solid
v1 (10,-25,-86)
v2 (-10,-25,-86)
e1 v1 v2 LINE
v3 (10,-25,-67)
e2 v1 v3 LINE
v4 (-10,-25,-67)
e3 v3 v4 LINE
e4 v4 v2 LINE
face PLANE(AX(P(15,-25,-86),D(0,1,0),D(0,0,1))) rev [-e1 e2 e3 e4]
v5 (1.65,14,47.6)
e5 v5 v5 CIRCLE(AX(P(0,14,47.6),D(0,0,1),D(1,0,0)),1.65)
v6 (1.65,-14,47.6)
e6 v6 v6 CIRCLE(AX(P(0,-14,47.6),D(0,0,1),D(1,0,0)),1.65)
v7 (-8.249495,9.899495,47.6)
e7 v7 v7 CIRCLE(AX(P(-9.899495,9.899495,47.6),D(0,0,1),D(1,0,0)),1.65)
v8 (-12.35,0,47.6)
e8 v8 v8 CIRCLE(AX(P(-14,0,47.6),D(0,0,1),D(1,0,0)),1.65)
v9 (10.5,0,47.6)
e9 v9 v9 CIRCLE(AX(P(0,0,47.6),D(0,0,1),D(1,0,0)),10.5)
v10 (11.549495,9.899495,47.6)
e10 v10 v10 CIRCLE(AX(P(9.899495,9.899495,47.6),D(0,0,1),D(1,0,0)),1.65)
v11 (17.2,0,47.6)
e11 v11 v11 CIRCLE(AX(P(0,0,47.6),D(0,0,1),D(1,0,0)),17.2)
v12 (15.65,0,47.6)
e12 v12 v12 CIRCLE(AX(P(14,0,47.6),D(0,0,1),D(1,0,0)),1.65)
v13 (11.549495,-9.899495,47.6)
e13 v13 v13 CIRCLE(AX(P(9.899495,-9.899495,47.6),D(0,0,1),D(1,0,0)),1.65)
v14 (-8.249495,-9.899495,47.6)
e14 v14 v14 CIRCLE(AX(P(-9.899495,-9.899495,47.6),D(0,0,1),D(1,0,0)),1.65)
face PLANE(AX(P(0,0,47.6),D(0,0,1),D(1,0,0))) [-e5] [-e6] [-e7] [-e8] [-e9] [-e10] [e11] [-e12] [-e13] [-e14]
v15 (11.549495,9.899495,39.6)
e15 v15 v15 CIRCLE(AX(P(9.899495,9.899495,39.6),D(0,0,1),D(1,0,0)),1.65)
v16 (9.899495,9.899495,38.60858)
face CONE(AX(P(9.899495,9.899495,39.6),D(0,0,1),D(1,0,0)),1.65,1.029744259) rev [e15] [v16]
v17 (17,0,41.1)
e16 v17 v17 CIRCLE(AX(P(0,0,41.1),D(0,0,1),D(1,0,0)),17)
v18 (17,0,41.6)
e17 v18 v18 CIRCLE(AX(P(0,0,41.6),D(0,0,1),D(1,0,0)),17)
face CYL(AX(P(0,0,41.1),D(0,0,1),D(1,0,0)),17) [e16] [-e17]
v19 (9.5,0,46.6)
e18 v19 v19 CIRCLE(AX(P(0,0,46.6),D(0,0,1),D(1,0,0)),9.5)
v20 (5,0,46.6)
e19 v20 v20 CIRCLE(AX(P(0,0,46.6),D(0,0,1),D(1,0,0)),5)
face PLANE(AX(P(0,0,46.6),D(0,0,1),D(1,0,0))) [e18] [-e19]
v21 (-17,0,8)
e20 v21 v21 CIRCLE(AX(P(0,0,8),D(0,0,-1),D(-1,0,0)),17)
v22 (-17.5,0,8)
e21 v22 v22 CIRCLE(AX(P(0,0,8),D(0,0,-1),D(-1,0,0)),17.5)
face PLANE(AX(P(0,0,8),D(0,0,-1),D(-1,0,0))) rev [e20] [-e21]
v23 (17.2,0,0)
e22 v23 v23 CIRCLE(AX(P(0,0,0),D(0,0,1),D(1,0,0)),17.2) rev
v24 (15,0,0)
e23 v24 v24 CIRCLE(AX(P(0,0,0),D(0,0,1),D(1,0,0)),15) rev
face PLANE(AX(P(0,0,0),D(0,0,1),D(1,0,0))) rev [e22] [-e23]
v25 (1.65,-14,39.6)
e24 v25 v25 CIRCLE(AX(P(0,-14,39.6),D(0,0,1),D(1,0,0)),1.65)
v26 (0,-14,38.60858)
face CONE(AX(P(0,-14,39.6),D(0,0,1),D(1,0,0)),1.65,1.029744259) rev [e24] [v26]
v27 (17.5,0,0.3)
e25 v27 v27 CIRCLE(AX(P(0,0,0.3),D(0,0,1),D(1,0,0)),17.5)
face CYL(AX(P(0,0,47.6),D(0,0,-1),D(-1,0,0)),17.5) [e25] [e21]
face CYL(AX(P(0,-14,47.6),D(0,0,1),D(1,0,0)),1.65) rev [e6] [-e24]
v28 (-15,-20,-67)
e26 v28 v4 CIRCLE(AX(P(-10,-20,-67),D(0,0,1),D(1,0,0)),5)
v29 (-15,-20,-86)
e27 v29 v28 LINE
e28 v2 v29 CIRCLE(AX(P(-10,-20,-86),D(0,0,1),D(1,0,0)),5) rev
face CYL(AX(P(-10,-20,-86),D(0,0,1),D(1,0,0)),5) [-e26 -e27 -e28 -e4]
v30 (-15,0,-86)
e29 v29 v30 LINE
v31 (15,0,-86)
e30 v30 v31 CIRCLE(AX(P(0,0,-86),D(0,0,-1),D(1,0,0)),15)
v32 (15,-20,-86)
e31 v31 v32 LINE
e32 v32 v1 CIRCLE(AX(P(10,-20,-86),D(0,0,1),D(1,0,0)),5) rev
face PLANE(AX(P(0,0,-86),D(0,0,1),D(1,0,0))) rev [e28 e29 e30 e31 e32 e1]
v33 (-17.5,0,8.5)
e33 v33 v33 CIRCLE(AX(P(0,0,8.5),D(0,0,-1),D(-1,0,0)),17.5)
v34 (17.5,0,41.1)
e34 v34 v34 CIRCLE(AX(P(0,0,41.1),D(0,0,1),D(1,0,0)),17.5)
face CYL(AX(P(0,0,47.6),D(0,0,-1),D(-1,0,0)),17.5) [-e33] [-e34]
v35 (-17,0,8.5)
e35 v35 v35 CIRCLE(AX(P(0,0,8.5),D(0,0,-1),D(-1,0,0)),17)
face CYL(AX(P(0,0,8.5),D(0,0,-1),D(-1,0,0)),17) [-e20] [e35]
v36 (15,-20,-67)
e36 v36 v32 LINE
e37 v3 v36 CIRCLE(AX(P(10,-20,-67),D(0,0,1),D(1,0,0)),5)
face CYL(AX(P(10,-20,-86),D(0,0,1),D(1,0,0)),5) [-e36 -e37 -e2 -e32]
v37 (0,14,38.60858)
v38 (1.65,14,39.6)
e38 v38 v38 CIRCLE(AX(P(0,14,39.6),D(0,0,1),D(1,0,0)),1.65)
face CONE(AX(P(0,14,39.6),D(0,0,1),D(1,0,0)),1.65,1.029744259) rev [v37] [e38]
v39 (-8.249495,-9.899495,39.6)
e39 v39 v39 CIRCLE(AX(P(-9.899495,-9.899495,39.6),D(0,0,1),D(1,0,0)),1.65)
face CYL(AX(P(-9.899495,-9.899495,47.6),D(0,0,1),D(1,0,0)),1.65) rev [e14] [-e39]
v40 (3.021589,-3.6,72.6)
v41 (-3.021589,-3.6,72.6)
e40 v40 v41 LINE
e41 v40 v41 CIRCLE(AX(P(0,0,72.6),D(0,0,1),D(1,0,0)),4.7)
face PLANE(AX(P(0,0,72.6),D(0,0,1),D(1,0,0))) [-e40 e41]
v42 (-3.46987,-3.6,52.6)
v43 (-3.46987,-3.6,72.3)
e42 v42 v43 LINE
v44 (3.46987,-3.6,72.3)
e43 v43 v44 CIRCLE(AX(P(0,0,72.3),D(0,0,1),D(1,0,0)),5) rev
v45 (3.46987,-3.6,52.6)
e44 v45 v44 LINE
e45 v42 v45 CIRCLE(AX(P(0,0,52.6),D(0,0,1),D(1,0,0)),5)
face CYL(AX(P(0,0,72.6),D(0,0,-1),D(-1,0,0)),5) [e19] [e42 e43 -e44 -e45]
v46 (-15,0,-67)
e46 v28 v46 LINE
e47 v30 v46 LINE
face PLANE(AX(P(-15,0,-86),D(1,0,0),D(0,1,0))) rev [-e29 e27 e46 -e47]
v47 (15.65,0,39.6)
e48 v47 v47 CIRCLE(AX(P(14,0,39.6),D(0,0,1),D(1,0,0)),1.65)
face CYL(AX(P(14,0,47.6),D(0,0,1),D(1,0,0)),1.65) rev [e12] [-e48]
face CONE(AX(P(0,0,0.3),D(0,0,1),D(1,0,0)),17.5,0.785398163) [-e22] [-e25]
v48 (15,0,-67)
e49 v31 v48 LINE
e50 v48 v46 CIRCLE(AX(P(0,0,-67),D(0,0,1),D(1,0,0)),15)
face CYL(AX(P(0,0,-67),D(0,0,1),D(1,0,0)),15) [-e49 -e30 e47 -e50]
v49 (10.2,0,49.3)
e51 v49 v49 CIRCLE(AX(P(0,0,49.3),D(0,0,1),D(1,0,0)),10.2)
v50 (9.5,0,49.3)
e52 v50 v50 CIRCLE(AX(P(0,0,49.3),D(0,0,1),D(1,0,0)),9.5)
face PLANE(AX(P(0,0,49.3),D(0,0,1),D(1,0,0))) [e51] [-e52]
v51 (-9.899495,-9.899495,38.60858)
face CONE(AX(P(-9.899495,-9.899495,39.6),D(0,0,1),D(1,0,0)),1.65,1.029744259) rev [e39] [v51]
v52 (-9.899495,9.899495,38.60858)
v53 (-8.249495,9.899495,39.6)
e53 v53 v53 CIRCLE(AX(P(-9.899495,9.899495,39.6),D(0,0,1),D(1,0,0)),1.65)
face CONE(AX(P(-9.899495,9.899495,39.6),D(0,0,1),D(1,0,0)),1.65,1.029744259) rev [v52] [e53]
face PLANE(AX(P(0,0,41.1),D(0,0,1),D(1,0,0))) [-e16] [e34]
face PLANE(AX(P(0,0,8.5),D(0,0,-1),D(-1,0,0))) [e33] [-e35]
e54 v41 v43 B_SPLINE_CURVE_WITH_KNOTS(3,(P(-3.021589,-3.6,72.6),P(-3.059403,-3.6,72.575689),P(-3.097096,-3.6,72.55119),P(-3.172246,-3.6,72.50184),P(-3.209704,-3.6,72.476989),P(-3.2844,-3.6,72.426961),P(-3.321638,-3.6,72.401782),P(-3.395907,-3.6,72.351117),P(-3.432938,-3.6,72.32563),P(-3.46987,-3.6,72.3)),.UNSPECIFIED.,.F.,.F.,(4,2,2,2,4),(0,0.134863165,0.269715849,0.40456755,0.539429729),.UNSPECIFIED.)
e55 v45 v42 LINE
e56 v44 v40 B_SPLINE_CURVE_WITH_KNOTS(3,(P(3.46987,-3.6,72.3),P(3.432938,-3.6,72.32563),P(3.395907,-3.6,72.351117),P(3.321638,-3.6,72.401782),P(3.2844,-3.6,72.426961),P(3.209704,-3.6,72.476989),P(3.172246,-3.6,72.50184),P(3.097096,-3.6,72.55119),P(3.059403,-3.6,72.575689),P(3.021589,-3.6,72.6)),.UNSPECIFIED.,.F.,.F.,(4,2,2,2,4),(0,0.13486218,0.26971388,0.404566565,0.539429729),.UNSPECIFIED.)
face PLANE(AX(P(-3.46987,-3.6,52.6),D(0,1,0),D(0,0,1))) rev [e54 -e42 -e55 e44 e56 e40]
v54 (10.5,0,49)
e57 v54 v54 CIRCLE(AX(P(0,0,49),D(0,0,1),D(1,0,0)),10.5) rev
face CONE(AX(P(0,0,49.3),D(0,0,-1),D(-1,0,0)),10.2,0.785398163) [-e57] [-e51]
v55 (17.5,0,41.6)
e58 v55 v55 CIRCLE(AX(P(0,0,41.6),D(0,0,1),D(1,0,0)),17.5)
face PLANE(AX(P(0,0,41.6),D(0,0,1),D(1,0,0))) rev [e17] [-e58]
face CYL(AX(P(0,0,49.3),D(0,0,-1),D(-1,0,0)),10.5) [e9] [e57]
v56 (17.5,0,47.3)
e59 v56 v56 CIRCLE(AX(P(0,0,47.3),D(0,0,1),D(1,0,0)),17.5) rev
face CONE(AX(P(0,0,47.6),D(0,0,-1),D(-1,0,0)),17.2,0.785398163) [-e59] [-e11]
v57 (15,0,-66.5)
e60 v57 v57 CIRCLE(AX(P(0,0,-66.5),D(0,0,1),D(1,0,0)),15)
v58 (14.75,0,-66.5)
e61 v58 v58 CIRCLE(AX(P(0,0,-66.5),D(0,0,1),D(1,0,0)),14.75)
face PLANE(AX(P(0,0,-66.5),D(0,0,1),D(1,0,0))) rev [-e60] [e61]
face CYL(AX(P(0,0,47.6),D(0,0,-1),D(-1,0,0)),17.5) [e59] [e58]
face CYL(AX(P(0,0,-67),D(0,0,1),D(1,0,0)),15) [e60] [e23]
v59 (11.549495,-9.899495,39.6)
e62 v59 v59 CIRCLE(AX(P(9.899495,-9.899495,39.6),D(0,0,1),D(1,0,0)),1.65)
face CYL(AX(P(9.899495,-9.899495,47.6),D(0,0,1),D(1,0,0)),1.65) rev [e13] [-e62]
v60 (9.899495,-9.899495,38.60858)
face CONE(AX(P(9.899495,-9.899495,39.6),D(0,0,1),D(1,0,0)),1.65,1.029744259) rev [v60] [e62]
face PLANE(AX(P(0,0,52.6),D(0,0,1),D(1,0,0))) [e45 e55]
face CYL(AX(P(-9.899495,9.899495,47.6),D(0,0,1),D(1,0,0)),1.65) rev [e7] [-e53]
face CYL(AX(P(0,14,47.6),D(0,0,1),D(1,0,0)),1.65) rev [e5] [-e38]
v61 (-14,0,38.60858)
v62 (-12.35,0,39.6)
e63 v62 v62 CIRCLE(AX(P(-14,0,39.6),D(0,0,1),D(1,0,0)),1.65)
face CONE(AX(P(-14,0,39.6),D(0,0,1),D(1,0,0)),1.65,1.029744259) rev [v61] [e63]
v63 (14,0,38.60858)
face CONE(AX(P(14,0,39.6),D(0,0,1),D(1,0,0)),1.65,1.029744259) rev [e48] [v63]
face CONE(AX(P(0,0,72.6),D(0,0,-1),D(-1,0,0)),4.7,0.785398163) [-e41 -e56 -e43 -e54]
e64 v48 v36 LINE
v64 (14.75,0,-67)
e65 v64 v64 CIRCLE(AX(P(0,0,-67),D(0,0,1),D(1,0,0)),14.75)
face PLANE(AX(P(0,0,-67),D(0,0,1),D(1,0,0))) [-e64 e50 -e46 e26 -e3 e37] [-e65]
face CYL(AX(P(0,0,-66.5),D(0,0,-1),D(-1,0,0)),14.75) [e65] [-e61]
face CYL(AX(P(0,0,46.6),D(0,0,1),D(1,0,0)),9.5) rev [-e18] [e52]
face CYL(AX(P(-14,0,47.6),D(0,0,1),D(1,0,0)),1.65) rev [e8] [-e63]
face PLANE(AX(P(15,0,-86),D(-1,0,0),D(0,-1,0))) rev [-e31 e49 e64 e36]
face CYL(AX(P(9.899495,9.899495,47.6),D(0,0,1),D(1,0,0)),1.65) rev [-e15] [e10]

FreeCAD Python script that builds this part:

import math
import FreeCAD as App
import Part
import Sketcher
from FreeCAD import Vector


def edges_at(feature, points):
    """Names of the edges that pass closest to the given points."""
    edges = feature.Shape.Edges
    near = lambda p: min(range(len(edges)), key=lambda i: edges[i].distToShape(Part.Vertex(*p))[0])
    return sorted({f"Edge{near(p) + 1}" for p in points})

doc = App.newDocument("Part")
body = doc.addObject("PartDesign::Body", "Body")

# Sketch on XY plane
sketch1 = body.newObject("Sketcher::SketchObject", "Sketch")
sketch1.AttachmentSupport = (doc.getObject("XY_Plane"), [""])
sketch1.MapMode = "FlatFace"
sketch1.addGeometry(Part.Circle(Vector(0, 0, 0), Vector(0, 0, 1), 17.5), False)
sketch1.addConstraint(Sketcher.Constraint("Coincident", 0, 3, -1, 1))
sketch1.addConstraint(Sketcher.Constraint("Diameter", 0, 35.0))
pad1 = body.newObject("PartDesign::Pad", "Pad")
pad1.Profile = sketch1
pad1.Length = 47.6

# Sketch on XY plane
sketch2 = body.newObject("Sketcher::SketchObject", "Sketch001")
sketch2.AttachmentSupport = (doc.getObject("XY_Plane"), [""])
sketch2.MapMode = "FlatFace"
sketch2.AttachmentOffset = App.Placement(Vector(0, 0, 47.6), App.Rotation())
sketch2.addGeometry(Part.Circle(Vector(0, 0, 0), Vector(0, 0, 1), 9.5), False)
sketch2.addConstraint(Sketcher.Constraint("Coincident", 0, 3, -1, 1))
sketch2.addConstraint(Sketcher.Constraint("Diameter", 0, 19.0))
pocket1 = body.newObject("PartDesign::Pocket", "Pocket")
pocket1.Profile = sketch2
pocket1.Length = 1

# Sketch on XY plane
sketch3 = body.newObject("Sketcher::SketchObject", "Sketch002")
sketch3.AttachmentSupport = (doc.getObject("XY_Plane"), [""])
sketch3.MapMode = "FlatFace"
sketch3.AttachmentOffset = App.Placement(Vector(0, 0, 47.6), App.Rotation())
sketch3.addGeometry(Part.Circle(Vector(0, 0, 0), Vector(0, 0, 1), 10.5), False)
sketch3.addGeometry(Part.Circle(Vector(0, 0, 0), Vector(0, 0, 1), 9.5), False)
sketch3.addConstraint(Sketcher.Constraint("Coincident", 0, 3, -1, 1))
sketch3.addConstraint(Sketcher.Constraint("Coincident", 1, 3, -1, 1))
sketch3.addConstraint(Sketcher.Constraint("Diameter", 0, 21.0))
sketch3.addConstraint(Sketcher.Constraint("Diameter", 1, 19.0))
pad2 = body.newObject("PartDesign::Pad", "Pad001")
pad2.Profile = sketch3
pad2.Length = 1.7

# Sketch on XY plane
sketch4 = body.newObject("Sketcher::SketchObject", "Sketch003")
sketch4.AttachmentSupport = (doc.getObject("XY_Plane"), [""])
sketch4.MapMode = "FlatFace"
sketch4.AttachmentOffset = App.Placement(Vector(0, 0, 46.6), App.Rotation())
sketch4.addGeometry(Part.Circle(Vector(0, 0, 0), Vector(0, 0, 1), 5), False)
sketch4.addConstraint(Sketcher.Constraint("Coincident", 0, 3, -1, 1))
sketch4.addConstraint(Sketcher.Constraint("Diameter", 0, 10.0))
pad3 = body.newObject("PartDesign::Pad", "Pad002")
pad3.Profile = sketch4
pad3.Length = 26

# Sketch on XY plane
sketch5 = body.newObject("Sketcher::SketchObject", "Sketch004")
sketch5.AttachmentSupport = (doc.getObject("XY_Plane"), [""])
sketch5.MapMode = "FlatFace"
sketch5.AttachmentOffset = App.Placement(Vector(0, 0, 72.6), App.Rotation())
sketch5.addGeometry(Part.LineSegment(Vector(3.46987, -3.6, 0), Vector(-3.46987, -3.6, 0)), False)
sketch5.addGeometry(Part.ArcOfCircle(Part.Circle(Vector(0, 0, 0), Vector(0, 0, 1), 5), math.radians(-133.94552), math.radians(-46.05448)), False)
sketch5.addConstraint(Sketcher.Constraint("Coincident", 0, 1, 1, 2))
sketch5.addConstraint(Sketcher.Constraint("Coincident", 1, 1, 0, 2))
sketch5.addConstraint(Sketcher.Constraint("Horizontal", 0))
sketch5.addConstraint(Sketcher.Constraint("Coincident", 1, 3, -1, 1))
sketch5.addConstraint(Sketcher.Constraint("Radius", 1, 5.0))
sketch5.addConstraint(Sketcher.Constraint("DistanceY", 0, 1, -1, 1, 3.6))
pocket2 = body.newObject("PartDesign::Pocket", "Pocket001")
pocket2.Profile = sketch5
pocket2.Length = 20

# Sketch on XY plane
sketch6 = body.newObject("Sketcher::SketchObject", "Sketch005")
sketch6.AttachmentSupport = (doc.getObject("XY_Plane"), [""])
sketch6.MapMode = "FlatFace"
sketch6.addGeometry(Part.Circle(Vector(0, 0, 0), Vector(0, 0, 1), 15), False)
sketch6.addConstraint(Sketcher.Constraint("Coincident", 0, 3, -1, 1))
sketch6.addConstraint(Sketcher.Constraint("Diameter", 0, 30.0))
pad4 = body.newObject("PartDesign::Pad", "Pad003")
pad4.Profile = sketch6
pad4.Length = 67
pad4.Reversed = True

# Sketch on XY plane
sketch7 = body.newObject("Sketcher::SketchObject", "Sketch006")
sketch7.AttachmentSupport = (doc.getObject("XY_Plane"), [""])
sketch7.MapMode = "FlatFace"
sketch7.AttachmentOffset = App.Placement(Vector(0, 0, -67), App.Rotation())
sketch7.addGeometry(Part.LineSegment(Vector(15, 0, 0), Vector(15, -25, 0)), False)
sketch7.addGeometry(Part.LineSegment(Vector(15, -25, 0), Vector(-15, -25, 0)), False)
sketch7.addGeometry(Part.LineSegment(Vector(-15, -25, 0), Vector(-15, 0, 0)), False)
sketch7.addGeometry(Part.ArcOfCircle(Part.Circle(Vector(0, 0, 0), Vector(0, 0, 1), 15), math.radians(0), math.radians(180)), False)
sketch7.addConstraint(Sketcher.Constraint("Coincident", 0, 2, 1, 1))
sketch7.addConstraint(Sketcher.Constraint("Coincident", 1, 2, 2, 1))
sketch7.addConstraint(Sketcher.Constraint("Tangent", 2, 2, 3, 2))
sketch7.addConstraint(Sketcher.Constraint("Tangent", 3, 1, 0, 1))
sketch7.addConstraint(Sketcher.Constraint("Vertical", 0))
sketch7.addConstraint(Sketcher.Constraint("Horizontal", 1))
sketch7.addConstraint(Sketcher.Constraint("Vertical", 2))
sketch7.addConstraint(Sketcher.Constraint("Coincident", 3, 3, -1, 1))
sketch7.addConstraint(Sketcher.Constraint("Radius", 3, 15.0))
sketch7.addConstraint(Sketcher.Constraint("DistanceY", 0, 2, 0, 1, 25.0))
pad5 = body.newObject("PartDesign::Pad", "Pad004")
pad5.Profile = sketch7
pad5.Length = 19
pad5.Reversed = True

# Sketch on XY plane
sketch8 = body.newObject("Sketcher::SketchObject", "Sketch007")
sketch8.AttachmentSupport = (doc.getObject("XY_Plane"), [""])
sketch8.MapMode = "FlatFace"
sketch8.AttachmentOffset = App.Placement(Vector(0, 0, 47.6), App.Rotation())
sketch8.addGeometry(Part.Circle(Vector(0, 14, 0), Vector(0, 0, 1), 1.65), False)
sketch8.addGeometry(Part.Circle(Vector(-9.899495, 9.899495, 0), Vector(0, 0, 1), 1.65), False)
sketch8.addGeometry(Part.Circle(Vector(-14, 0, 0), Vector(0, 0, 1), 1.65), False)
sketch8.addGeometry(Part.Circle(Vector(-9.899495, -9.899495, 0), Vector(0, 0, 1), 1.65), False)
sketch8.addGeometry(Part.Circle(Vector(0, -14, 0), Vector(0, 0, 1), 1.65), False)
sketch8.addGeometry(Part.Circle(Vector(9.899495, -9.899495, 0), Vector(0, 0, 1), 1.65), False)
sketch8.addGeometry(Part.Circle(Vector(14, 0, 0), Vector(0, 0, 1), 1.65), False)
sketch8.addGeometry(Part.Circle(Vector(9.899495, 9.899495, 0), Vector(0, 0, 1), 1.65), False)
sketch8.addConstraint(Sketcher.Constraint("Equal", 0, 1))
sketch8.addConstraint(Sketcher.Constraint("Equal", 1, 2))
sketch8.addConstraint(Sketcher.Constraint("Equal", 2, 3))
sketch8.addConstraint(Sketcher.Constraint("Equal", 3, 4))
sketch8.addConstraint(Sketcher.Constraint("Equal", 4, 5))
sketch8.addConstraint(Sketcher.Constraint("Equal", 5, 6))
sketch8.addConstraint(Sketcher.Constraint("Equal", 6, 7))
sketch8.addConstraint(Sketcher.Constraint("Symmetric", 0, 3, 4, 3, -1, 1))
sketch8.addConstraint(Sketcher.Constraint("Symmetric", 1, 3, 5, 3, -1, 1))
sketch8.addConstraint(Sketcher.Constraint("Symmetric", 2, 3, 6, 3, -1, 1))
sketch8.addConstraint(Sketcher.Constraint("Symmetric", 3, 3, 7, 3, -1, 1))
sketch8.addConstraint(Sketcher.Constraint("Symmetric", 3, 3, 5, 3, -2))
sketch8.addConstraint(Sketcher.Constraint("PointOnObject", 0, 3, -2))
sketch8.addConstraint(Sketcher.Constraint("PointOnObject", 2, 3, -1))
sketch8.addConstraint(Sketcher.Constraint("Diameter", 0, 3.3))
sketch8.addConstraint(Sketcher.Constraint("DistanceY", -1, 1, 0, 3, 14.0))
sketch8.addConstraint(Sketcher.Constraint("DistanceX", 2, 3, -1, 1, 14.0))
sketch8.addConstraint(Sketcher.Constraint("DistanceY", 3, 3, 1, 3, 19.79899))
sketch8.addConstraint(Sketcher.Constraint("DistanceX", 3, 3, 5, 3, 19.79899))
doc.recompute()
hole = body.newObject("PartDesign::Hole", "Hole")
hole.Profile = sketch8
hole.ThreadType = "None"
hole.Diameter = 3.3
hole.DepthType = "Dimension"
hole.Depth = 8
hole.DrillPoint = "Angled"
hole.DrillPointAngle = 118

# Sketch on XY plane
sketch9 = body.newObject("Sketcher::SketchObject", "Sketch008")
sketch9.AttachmentSupport = (doc.getObject("XY_Plane"), [""])
sketch9.MapMode = "FlatFace"
sketch9.AttachmentOffset = App.Placement(Vector(0, 0, 41.6), App.Rotation())
sketch9.addGeometry(Part.Circle(Vector(0, 0, 0), Vector(0, 0, 1), 17.5), False)
sketch9.addGeometry(Part.Circle(Vector(0, 0, 0), Vector(0, 0, 1), 17), False)
sketch9.addConstraint(Sketcher.Constraint("Coincident", 0, 3, -1, 1))
sketch9.addConstraint(Sketcher.Constraint("Coincident", 1, 3, -1, 1))
sketch9.addConstraint(Sketcher.Constraint("Diameter", 0, 35.0))
sketch9.addConstraint(Sketcher.Constraint("Diameter", 1, 34.0))
pocket3 = body.newObject("PartDesign::Pocket", "Pocket002")
pocket3.Profile = sketch9
pocket3.Length = 0.5

# Sketch on XY plane
sketch10 = body.newObject("Sketcher::SketchObject", "Sketch009")
sketch10.AttachmentSupport = (doc.getObject("XY_Plane"), [""])
sketch10.MapMode = "FlatFace"
sketch10.AttachmentOffset = App.Placement(Vector(0, 0, 8), App.Rotation())
sketch10.addGeometry(Part.Circle(Vector(0, 0, 0), Vector(0, 0, 1), 17.5), False)
sketch10.addGeometry(Part.Circle(Vector(0, 0, 0), Vector(0, 0, 1), 17), False)
sketch10.addConstraint(Sketcher.Constraint("Coincident", 0, 3, -1, 1))
sketch10.addConstraint(Sketcher.Constraint("Coincident", 1, 3, -1, 1))
sketch10.addConstraint(Sketcher.Constraint("Diameter", 0, 35.0))
sketch10.addConstraint(Sketcher.Constraint("Diameter", 1, 34.0))
pocket4 = body.newObject("PartDesign::Pocket", "Pocket003")
pocket4.Profile = sketch10
pocket4.Length = 0.5
pocket4.Reversed = True

# Sketch on XY plane
sketch11 = body.newObject("Sketcher::SketchObject", "Sketch010")
sketch11.AttachmentSupport = (doc.getObject("XY_Plane"), [""])
sketch11.MapMode = "FlatFace"
sketch11.AttachmentOffset = App.Placement(Vector(0, 0, -67), App.Rotation())
sketch11.addGeometry(Part.Circle(Vector(0, 0, 0), Vector(0, 0, 1), 15), False)
sketch11.addGeometry(Part.Circle(Vector(0, 0, 0), Vector(0, 0, 1), 14.75), False)
sketch11.addConstraint(Sketcher.Constraint("Coincident", 0, 3, -1, 1))
sketch11.addConstraint(Sketcher.Constraint("Coincident", 1, 3, -1, 1))
sketch11.addConstraint(Sketcher.Constraint("Diameter", 0, 30.0))
sketch11.addConstraint(Sketcher.Constraint("Diameter", 1, 29.5))
pocket5 = body.newObject("PartDesign::Pocket", "Pocket004")
pocket5.Profile = sketch11
pocket5.Length = 0.5
pocket5.Reversed = True
doc.recompute()

chamfer = body.newObject("PartDesign::Chamfer", "Chamfer")
chamfer.Base = (pocket5, edges_at(pocket5, [(-17.5, 0, 0), (-1.956, 4.602, 72.6), (-17.5, 0, 47.6)]))
chamfer.Size = 0.3
doc.recompute()

chamfer2 = body.newObject("PartDesign::Chamfer", "Chamfer001")
chamfer2.Base = (chamfer, edges_at(chamfer, [(-10.5, 0, 49.3)]))
chamfer2.Size = 0.3
doc.recompute()

fillet = body.newObject("PartDesign::Fillet", "Fillet")
fillet.Base = (chamfer2, edges_at(chamfer2, [(15, -25, -76.5), (-15, -25, -76.5)]))
fillet.Radius = 5

doc.recompute()
